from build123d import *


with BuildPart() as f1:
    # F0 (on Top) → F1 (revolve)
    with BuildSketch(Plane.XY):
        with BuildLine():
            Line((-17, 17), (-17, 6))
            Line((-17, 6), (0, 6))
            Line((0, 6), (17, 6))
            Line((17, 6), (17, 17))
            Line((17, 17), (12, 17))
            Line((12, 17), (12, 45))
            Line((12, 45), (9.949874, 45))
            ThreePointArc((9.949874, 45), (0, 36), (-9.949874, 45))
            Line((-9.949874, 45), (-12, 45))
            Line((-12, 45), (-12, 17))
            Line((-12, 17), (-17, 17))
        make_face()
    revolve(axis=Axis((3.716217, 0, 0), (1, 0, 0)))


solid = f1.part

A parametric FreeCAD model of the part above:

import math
import FreeCAD as App
import Part
import Sketcher

V = App.Vector

doc = App.newDocument("Part")
body = doc.addObject("PartDesign::Body", "Body")

sketch1 = body.newObject("Sketcher::SketchObject", "Sketch")
sketch1.AttachmentSupport = (doc.getObject("XY_Plane"), [""])
sketch1.MapMode = "FlatFace"
sketch1.addGeometry([
    Part.LineSegment(V(-17, 17, 0), V(-17, 6, 0)),
    Part.LineSegment(V(-17, 6, 0), V(17, 6, 0)),
    Part.LineSegment(V(17, 6, 0), V(17, 17, 0)),
    Part.LineSegment(V(17, 17, 0), V(12, 17, 0)),
    Part.LineSegment(V(12, 17, 0), V(12, 45, 0)),
    Part.LineSegment(V(12, 45, 0), V(9.949874, 45, 0)),
    Part.ArcOfCircle(Part.Circle(V(0, 46, 0), V(0, 0, 1), 10), math.radians(-174.260832), math.radians(-5.739168)),
    Part.LineSegment(V(-9.949874, 45, 0), V(-12, 45, 0)),
    Part.LineSegment(V(-12, 45, 0), V(-12, 17, 0)),
    Part.LineSegment(V(-12, 17, 0), V(-17, 17, 0)),
], False)
sketch1.addConstraint([
    Sketcher.Constraint("Coincident", 0, 2, 1, 1),
    Sketcher.Constraint("Coincident", 1, 2, 2, 1),
    Sketcher.Constraint("Coincident", 2, 2, 3, 1),
    Sketcher.Constraint("Coincident", 3, 2, 4, 1),
    Sketcher.Constraint("Coincident", 4, 2, 5, 1),
    Sketcher.Constraint("Coincident", 5, 2, 6, 2),
    Sketcher.Constraint("Coincident", 6, 1, 7, 1),
    Sketcher.Constraint("Coincident", 7, 2, 8, 1),
    Sketcher.Constraint("Coincident", 8, 2, 9, 1),
    Sketcher.Constraint("Coincident", 9, 2, 0, 1),
    Sketcher.Constraint("Vertical", 0),
    Sketcher.Constraint("Horizontal", 1),
    Sketcher.Constraint("Vertical", 2),
    Sketcher.Constraint("Horizontal", 3),
    Sketcher.Constraint("Vertical", 4),
    Sketcher.Constraint("Horizontal", 5),
    Sketcher.Constraint("Horizontal", 7),
    Sketcher.Constraint("Vertical", 8),
    Sketcher.Constraint("Horizontal", 9),
    Sketcher.Constraint("Symmetric", 5, 2, 6, 1, -2),
    Sketcher.Constraint("Symmetric", 3, 2, 8, 2, -2),
    Sketcher.Constraint("Equal", 3, 9),
    Sketcher.Constraint("Radius", 6, 10.0),
    Sketcher.Constraint("DistanceX", 1, 1, 1, 2, 34.0),
    Sketcher.Constraint("DistanceX", 3, 2, 3, 1, 5.0),
    Sketcher.Constraint("DistanceY", 0, 2, 0, 1, 11.0),
    Sketcher.Constraint("DistanceY", 4, 1, 4, 2, 28.0),
    Sketcher.Constraint("DistanceY", -1, 1, 6, 3, 46.0),
    Sketcher.Constraint("DistanceY", -1, 1, 0, 2, 6.0),
])
revolution = body.newObject("PartDesign::Revolution", "Revolution")
revolution.Profile = sketch1
revolution.ReferenceAxis = (sketch1, ["H_Axis"])
revolution.Angle = 360

doc.recompute()
